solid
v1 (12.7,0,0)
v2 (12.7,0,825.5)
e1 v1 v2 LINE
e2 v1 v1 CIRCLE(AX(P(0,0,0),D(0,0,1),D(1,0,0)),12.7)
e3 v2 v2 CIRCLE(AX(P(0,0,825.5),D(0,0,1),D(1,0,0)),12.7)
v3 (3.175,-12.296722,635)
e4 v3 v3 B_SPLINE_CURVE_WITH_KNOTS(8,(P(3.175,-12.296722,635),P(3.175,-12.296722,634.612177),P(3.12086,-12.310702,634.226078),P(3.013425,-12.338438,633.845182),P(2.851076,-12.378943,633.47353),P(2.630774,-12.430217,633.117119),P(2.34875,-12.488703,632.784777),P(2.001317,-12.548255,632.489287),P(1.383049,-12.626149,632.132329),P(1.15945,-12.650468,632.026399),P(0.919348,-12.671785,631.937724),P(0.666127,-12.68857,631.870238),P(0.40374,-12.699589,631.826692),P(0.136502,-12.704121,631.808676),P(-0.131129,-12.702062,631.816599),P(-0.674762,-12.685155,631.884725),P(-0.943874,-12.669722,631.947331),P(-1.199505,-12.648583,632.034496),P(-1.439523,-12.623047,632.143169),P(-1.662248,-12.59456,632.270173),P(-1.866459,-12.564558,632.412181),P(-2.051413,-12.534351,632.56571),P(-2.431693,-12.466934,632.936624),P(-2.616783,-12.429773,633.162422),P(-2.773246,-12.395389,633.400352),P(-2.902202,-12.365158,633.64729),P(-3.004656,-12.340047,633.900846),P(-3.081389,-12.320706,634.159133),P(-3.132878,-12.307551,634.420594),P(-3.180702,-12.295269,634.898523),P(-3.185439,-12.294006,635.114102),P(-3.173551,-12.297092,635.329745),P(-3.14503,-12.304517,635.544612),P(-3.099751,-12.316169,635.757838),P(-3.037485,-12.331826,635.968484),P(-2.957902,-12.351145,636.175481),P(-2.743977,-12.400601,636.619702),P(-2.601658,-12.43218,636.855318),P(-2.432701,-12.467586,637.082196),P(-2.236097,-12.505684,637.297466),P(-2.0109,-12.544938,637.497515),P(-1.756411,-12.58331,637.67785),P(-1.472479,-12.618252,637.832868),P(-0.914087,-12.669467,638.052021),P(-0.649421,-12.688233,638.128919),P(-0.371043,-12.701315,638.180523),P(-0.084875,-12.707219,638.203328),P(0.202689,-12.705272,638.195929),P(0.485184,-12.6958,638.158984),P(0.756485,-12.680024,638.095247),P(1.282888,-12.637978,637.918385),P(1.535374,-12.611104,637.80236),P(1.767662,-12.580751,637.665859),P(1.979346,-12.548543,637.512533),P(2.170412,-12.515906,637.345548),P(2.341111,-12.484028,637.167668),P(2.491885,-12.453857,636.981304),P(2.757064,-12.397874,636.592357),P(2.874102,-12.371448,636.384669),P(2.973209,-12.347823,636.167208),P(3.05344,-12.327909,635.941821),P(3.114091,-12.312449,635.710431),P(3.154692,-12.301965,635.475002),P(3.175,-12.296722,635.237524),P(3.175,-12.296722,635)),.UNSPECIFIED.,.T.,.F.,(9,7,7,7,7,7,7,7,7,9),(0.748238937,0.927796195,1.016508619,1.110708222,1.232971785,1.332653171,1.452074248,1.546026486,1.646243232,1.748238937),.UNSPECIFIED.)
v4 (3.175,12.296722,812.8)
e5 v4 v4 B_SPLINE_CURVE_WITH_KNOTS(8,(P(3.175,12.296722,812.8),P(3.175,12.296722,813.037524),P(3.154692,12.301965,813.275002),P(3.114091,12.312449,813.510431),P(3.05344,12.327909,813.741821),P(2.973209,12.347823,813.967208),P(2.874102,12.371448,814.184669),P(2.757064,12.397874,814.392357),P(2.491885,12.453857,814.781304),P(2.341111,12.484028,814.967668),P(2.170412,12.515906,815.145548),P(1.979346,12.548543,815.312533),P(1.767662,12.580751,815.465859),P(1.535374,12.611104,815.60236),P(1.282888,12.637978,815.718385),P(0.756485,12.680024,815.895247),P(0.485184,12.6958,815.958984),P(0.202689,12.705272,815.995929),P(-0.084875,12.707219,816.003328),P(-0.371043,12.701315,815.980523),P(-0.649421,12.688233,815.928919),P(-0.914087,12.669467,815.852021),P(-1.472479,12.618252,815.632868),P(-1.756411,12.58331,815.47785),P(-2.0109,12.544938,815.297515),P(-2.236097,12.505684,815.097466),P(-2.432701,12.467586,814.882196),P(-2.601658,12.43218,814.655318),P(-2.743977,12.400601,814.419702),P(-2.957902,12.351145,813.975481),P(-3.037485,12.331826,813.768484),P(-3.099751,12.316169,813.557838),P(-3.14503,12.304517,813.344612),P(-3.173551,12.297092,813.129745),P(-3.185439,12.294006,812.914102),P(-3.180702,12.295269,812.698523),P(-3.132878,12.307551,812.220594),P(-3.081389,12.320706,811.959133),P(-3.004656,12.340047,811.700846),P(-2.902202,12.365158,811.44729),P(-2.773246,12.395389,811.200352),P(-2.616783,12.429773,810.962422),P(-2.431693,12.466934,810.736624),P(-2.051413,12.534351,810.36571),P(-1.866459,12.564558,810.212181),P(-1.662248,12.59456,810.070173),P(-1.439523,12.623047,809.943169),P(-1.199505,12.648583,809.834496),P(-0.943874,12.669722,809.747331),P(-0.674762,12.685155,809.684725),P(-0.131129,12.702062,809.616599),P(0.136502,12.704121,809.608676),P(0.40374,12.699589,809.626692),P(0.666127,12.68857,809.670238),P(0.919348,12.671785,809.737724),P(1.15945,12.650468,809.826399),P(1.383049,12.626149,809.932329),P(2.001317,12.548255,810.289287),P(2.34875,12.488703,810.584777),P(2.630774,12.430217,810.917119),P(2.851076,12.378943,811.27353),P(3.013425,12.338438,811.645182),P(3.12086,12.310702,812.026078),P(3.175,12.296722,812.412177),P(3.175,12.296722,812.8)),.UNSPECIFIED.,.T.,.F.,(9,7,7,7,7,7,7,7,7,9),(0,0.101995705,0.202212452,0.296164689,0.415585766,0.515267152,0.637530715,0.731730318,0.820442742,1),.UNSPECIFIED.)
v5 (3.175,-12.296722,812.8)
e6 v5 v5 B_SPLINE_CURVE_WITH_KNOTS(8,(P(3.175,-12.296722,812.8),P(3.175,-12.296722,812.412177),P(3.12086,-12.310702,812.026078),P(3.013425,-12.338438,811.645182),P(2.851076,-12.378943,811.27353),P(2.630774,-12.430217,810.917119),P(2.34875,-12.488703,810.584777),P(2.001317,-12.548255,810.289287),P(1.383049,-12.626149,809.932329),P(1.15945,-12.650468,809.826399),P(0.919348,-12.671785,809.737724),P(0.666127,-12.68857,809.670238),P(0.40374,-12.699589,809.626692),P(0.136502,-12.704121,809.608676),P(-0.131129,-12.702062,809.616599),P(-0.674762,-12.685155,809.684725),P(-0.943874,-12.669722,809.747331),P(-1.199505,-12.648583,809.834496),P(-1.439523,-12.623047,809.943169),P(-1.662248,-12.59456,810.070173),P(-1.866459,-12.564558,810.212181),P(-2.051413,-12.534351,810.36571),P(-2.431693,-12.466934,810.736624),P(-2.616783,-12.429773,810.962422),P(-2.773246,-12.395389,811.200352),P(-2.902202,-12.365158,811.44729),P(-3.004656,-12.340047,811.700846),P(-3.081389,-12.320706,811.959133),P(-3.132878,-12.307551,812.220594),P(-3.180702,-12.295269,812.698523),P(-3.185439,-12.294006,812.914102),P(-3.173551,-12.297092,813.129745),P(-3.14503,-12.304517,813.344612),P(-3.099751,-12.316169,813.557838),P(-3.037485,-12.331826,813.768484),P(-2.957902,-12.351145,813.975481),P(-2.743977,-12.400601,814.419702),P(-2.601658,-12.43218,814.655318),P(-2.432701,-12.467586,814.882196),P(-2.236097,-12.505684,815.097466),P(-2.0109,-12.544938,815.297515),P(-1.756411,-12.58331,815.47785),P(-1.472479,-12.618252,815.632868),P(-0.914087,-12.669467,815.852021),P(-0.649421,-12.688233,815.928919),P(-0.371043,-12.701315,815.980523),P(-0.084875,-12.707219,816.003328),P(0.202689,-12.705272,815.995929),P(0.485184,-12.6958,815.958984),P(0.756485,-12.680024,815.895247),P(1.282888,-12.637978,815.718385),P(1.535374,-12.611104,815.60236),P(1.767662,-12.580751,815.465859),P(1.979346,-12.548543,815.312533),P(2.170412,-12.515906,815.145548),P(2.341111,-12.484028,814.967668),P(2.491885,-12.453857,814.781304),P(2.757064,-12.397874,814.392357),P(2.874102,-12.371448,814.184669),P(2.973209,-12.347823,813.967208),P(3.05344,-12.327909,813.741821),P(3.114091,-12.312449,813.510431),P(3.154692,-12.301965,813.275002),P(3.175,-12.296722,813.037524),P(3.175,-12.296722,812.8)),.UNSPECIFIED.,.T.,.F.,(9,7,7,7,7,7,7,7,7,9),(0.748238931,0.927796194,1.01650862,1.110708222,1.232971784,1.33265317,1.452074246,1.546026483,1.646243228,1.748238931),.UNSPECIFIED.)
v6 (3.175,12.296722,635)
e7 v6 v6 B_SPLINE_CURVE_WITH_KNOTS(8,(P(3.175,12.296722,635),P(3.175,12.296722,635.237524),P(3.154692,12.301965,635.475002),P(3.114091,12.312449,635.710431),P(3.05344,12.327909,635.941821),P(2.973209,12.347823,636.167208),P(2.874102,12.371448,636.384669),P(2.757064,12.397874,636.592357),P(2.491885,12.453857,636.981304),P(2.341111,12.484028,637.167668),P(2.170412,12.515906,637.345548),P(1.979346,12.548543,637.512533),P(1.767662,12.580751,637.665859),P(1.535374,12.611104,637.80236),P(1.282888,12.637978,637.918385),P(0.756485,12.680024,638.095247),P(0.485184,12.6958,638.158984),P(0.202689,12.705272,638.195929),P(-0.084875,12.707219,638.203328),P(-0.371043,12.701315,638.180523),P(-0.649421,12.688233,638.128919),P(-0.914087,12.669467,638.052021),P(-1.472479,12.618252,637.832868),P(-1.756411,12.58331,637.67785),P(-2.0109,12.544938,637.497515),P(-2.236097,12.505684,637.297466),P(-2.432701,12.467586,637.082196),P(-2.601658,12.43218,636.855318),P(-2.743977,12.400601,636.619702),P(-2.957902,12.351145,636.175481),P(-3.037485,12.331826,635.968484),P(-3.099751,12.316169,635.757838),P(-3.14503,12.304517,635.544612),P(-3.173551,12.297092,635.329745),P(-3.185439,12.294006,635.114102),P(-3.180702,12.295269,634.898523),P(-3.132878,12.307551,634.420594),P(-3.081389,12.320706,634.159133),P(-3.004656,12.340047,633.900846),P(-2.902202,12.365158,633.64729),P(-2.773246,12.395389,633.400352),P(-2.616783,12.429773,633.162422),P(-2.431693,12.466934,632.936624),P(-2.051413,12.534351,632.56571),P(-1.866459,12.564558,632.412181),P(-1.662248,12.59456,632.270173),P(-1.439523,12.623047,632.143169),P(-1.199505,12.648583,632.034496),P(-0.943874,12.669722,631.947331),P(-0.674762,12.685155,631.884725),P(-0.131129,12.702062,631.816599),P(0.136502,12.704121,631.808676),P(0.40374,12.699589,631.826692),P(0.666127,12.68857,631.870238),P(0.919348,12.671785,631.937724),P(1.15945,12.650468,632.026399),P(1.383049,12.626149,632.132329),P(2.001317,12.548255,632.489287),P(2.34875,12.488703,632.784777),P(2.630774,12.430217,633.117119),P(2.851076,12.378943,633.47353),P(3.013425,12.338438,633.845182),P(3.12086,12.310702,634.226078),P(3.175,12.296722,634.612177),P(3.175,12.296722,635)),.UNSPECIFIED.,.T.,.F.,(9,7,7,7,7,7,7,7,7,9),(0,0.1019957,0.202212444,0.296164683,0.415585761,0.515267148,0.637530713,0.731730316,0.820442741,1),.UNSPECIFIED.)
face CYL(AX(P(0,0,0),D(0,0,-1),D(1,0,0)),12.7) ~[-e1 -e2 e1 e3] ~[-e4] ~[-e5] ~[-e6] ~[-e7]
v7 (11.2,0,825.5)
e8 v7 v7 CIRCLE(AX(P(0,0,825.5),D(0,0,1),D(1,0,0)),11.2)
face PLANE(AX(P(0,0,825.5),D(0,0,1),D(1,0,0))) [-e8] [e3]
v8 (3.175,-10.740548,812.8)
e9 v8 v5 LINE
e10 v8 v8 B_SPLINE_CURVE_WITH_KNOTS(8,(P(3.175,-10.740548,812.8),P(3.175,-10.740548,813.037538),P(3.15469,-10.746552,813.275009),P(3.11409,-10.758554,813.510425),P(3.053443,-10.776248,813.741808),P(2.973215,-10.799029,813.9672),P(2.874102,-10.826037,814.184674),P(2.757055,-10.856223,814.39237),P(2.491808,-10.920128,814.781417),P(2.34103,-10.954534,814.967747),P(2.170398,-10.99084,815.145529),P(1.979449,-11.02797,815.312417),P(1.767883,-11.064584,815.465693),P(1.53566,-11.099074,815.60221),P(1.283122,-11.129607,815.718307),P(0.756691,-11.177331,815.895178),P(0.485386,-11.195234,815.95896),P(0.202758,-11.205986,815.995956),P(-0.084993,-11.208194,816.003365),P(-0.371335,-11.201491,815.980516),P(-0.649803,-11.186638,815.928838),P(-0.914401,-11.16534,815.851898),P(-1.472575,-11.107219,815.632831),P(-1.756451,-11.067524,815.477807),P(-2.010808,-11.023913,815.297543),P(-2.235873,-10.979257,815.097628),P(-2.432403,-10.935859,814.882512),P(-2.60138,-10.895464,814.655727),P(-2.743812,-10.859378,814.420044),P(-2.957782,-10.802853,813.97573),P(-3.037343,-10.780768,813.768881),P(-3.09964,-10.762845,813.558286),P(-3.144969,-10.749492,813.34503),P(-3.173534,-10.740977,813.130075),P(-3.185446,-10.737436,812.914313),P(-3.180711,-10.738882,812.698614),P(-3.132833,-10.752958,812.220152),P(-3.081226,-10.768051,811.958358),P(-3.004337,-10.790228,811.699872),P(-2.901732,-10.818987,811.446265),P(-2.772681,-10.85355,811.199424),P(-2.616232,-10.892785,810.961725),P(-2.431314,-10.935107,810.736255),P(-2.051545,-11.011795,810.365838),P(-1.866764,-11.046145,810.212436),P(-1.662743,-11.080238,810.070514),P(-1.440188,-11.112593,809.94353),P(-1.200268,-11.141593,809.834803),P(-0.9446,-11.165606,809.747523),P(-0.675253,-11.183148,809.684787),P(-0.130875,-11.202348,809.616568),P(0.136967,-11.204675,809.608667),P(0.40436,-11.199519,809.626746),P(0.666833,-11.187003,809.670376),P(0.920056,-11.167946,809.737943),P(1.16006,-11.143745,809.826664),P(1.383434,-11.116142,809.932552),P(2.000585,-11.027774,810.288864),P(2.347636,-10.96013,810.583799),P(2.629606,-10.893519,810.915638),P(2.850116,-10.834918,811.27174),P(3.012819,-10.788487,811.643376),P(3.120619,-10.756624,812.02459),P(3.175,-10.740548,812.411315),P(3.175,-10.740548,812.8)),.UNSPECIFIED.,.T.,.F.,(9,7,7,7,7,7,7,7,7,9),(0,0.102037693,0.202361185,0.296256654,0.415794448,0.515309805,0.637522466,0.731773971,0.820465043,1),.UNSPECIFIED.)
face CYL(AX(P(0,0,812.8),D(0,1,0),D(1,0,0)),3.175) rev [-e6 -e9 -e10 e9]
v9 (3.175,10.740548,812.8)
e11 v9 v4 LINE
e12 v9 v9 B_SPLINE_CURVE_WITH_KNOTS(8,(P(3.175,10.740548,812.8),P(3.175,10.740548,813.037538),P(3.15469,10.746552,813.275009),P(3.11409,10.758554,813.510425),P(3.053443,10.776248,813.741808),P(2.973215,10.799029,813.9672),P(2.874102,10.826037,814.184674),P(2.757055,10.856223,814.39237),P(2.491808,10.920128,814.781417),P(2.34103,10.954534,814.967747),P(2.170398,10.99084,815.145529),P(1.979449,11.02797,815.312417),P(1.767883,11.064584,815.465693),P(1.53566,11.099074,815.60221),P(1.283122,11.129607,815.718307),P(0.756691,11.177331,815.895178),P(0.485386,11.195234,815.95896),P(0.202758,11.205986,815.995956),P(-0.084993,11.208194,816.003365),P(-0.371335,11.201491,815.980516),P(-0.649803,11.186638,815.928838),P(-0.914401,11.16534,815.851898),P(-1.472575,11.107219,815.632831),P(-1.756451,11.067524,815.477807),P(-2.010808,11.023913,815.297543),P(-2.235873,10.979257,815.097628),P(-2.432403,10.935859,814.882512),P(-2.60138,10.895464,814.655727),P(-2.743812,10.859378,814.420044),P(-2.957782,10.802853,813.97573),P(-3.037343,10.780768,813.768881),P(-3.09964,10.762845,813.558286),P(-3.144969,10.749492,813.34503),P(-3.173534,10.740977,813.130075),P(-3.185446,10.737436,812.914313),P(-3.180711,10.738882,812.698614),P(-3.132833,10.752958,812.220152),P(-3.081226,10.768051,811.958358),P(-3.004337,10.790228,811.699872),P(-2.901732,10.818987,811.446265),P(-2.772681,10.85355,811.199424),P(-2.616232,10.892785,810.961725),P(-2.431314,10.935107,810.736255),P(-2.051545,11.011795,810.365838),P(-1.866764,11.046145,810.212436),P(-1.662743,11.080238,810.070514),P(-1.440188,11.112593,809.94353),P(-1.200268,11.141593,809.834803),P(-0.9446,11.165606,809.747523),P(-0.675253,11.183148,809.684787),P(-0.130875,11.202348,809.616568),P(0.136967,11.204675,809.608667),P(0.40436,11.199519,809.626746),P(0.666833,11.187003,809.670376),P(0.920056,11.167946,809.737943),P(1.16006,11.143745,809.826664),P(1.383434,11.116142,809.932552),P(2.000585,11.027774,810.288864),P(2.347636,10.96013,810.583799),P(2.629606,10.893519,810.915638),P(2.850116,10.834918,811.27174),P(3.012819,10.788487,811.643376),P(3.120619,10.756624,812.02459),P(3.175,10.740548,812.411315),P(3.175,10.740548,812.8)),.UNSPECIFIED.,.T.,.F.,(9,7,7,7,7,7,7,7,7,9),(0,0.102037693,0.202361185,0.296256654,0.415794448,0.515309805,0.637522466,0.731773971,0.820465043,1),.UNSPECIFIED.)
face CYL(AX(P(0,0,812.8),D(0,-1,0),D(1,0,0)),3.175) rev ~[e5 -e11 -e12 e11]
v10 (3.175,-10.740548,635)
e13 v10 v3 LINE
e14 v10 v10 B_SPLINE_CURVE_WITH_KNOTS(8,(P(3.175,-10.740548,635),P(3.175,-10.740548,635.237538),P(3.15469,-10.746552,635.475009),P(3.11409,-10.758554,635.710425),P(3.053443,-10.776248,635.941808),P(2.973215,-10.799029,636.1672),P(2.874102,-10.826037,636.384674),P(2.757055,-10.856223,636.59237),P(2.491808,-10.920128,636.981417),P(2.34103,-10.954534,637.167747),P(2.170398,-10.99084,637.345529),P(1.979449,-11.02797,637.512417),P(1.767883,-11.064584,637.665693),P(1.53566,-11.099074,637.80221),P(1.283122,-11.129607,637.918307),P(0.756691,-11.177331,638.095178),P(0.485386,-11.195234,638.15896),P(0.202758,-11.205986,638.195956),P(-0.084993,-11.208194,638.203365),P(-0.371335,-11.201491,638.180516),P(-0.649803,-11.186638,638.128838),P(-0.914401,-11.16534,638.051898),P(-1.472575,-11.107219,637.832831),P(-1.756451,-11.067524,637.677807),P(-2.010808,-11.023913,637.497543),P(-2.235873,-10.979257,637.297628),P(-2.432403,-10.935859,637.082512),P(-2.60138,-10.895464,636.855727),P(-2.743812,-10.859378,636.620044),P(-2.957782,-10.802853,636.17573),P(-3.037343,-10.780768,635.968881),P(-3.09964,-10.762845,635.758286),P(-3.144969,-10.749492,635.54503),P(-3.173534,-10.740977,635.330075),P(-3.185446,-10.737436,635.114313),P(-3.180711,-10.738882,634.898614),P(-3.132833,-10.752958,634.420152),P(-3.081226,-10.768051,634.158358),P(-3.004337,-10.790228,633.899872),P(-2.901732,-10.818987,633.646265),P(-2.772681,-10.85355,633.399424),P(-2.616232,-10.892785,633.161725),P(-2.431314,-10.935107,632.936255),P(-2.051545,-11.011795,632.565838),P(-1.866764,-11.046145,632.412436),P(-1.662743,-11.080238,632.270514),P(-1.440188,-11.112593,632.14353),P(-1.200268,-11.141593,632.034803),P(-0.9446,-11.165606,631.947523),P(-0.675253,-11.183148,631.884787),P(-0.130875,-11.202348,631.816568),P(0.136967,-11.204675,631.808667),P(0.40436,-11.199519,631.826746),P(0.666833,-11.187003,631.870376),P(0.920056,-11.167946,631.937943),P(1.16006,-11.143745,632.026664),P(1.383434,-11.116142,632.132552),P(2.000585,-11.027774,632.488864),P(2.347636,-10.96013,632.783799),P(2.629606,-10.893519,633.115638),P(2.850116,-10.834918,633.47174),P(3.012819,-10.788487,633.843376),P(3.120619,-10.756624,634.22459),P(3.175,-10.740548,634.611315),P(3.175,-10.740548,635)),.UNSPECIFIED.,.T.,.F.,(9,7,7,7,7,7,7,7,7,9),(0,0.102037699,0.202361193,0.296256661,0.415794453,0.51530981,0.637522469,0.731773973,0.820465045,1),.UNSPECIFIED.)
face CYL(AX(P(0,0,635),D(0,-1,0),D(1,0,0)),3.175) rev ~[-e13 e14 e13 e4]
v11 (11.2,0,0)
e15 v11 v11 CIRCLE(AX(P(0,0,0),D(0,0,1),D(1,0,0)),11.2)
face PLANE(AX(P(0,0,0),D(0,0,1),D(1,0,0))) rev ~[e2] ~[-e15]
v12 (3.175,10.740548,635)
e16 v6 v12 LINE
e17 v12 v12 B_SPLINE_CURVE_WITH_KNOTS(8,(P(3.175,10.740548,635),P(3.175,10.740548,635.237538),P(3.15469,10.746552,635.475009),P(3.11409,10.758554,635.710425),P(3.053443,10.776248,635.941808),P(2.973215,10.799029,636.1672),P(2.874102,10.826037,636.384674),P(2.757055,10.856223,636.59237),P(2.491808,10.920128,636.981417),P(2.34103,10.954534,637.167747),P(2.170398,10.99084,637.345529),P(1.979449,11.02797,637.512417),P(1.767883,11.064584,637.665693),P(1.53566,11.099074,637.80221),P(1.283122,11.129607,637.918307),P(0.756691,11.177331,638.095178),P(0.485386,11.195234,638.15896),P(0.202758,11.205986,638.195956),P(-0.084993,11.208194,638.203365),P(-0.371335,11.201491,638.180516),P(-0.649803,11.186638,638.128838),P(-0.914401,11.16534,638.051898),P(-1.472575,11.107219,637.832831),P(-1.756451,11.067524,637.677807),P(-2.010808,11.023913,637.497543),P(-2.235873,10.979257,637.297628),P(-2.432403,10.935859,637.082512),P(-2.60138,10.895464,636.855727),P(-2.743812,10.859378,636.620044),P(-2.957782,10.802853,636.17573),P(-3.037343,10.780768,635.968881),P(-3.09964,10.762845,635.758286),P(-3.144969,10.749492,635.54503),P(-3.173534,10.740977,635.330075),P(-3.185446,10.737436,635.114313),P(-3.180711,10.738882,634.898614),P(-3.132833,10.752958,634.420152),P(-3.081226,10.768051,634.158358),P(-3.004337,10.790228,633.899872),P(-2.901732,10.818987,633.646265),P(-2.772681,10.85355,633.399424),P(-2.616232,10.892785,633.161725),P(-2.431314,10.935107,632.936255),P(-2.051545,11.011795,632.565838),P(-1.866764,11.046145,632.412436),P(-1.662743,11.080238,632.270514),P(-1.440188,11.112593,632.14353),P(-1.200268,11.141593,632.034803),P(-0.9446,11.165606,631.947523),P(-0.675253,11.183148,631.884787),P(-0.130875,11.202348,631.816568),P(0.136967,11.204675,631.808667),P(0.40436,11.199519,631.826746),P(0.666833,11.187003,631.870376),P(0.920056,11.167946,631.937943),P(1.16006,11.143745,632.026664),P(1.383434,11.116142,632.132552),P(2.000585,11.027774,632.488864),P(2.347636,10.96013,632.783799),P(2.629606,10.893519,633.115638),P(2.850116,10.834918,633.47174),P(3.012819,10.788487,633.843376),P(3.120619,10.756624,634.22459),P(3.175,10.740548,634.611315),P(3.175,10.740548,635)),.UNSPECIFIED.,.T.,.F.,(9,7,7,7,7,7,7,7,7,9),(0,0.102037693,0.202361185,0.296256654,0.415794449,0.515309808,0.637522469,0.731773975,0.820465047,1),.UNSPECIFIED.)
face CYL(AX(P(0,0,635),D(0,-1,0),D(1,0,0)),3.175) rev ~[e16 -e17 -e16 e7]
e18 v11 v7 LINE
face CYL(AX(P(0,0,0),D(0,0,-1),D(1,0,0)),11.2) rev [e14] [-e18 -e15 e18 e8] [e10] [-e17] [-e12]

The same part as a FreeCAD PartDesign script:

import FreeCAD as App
import Part
import Sketcher

V = App.Vector
Q = App.Units.Quantity

doc = App.newDocument("Part")
body = doc.addObject("PartDesign::Body", "Body")

# Sketch on XY plane
sketch1 = body.newObject("Sketcher::SketchObject", "Sketch")
sketch1.AttachmentSupport = (doc.getObject("XY_Plane"), [""])
sketch1.MapMode = "FlatFace"
sketch1.addGeometry([
    Part.Circle(V(0, 0, 0), V(0, 0, 1), 12.7),
    Part.Circle(V(0, 0, 0), V(0, 0, 1), 11.2),
], False)
sketch1.addConstraint([
    Sketcher.Constraint("Coincident", 0, 3, -1, 1),
    Sketcher.Constraint("Coincident", 1, 3, -1, 1),
    Sketcher.Constraint("Diameter", 0, Q("1 in")),
    Sketcher.Constraint("Diameter", 1, Q("22.4 mm")),
])
pad1 = body.newObject("PartDesign::Pad", "Pad")
pad1.Profile = sketch1
pad1.Length = Q("32.5 in")

# Sketch on XZ plane
sketch2 = body.newObject("Sketcher::SketchObject", "Sketch001")
sketch2.AttachmentSupport = (doc.getObject("XZ_Plane"), [""])
sketch2.MapMode = "FlatFace"
sketch2.addGeometry([
    Part.Circle(V(0, 812.8, 0), V(0, 0, 1), 3.175),
    Part.Circle(V(0, 635, 0), V(0, 0, 1), 3.175),
], False)
sketch2.addConstraint([
    Sketcher.Constraint("Equal", 0, 1),
    Sketcher.Constraint("PointOnObject", 0, 3, -2),
    Sketcher.Constraint("PointOnObject", 1, 3, -2),
    Sketcher.Constraint("Diameter", 0, Q("0.25 in")),
    Sketcher.Constraint("DistanceY", -1, 1, 0, 3, Q("32 in")),
    Sketcher.Constraint("DistanceY", -1, 1, 1, 3, Q("25 in")),
])
pocket1 = body.newObject("PartDesign::Pocket", "Pocket")
pocket1.Profile = sketch2
pocket1.Length = Q("1 in")
pocket1.Midplane = True

doc.recompute()
